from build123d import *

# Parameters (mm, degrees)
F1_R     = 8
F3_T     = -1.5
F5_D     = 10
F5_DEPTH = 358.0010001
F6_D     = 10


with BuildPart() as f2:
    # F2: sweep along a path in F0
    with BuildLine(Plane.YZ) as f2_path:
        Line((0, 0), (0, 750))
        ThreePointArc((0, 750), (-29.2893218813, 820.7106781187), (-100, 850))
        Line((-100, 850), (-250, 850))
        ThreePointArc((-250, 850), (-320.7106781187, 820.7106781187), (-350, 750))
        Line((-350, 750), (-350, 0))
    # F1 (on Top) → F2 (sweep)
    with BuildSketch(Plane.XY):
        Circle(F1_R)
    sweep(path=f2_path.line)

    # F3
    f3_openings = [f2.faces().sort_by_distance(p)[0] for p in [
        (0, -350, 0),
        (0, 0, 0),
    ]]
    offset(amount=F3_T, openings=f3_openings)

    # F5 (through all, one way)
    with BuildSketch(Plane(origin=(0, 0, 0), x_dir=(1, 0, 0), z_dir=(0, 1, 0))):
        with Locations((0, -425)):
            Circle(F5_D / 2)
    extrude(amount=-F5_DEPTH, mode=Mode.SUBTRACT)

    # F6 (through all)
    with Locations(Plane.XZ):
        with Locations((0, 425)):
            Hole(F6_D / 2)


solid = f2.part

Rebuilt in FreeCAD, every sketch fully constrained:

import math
import FreeCAD as App
import Part
import Sketcher
from FreeCAD import Vector
Q = App.Units.Quantity


def faces_at(feature, points):
    """Names of the faces that lie closest to the given points."""
    faces = feature.Shape.Faces
    near = lambda p: min(range(len(faces)), key=lambda i: faces[i].distToShape(Part.Vertex(*p))[0])
    return sorted({f"Face{near(p) + 1}" for p in points})

doc = App.newDocument("Part")
body = doc.addObject("PartDesign::Body", "Body")

# Sketch on XY plane
sketch1 = body.newObject("Sketcher::SketchObject", "Sketch")
sketch1.AttachmentSupport = (doc.getObject("XY_Plane"), [""])
sketch1.MapMode = "FlatFace"
sketch1.addGeometry(Part.Circle(Vector(0, 0, 0), Vector(0, 0, 1), 8), False)
sketch1.addConstraint(Sketcher.Constraint("Coincident", 0, 3, -1, 1))
sketch1.addConstraint(Sketcher.Constraint("Diameter", 0, Q("16 mm")))

# Sketch on YZ plane
sketch2 = body.newObject("Sketcher::SketchObject", "Sketch001")
sketch2.AttachmentSupport = (doc.getObject("YZ_Plane"), [""])
sketch2.MapMode = "FlatFace"
sketch2.addGeometry(Part.LineSegment(Vector(0, 0, 0), Vector(0, 750, 0)), False)
sketch2.addGeometry(Part.ArcOfCircle(Part.Circle(Vector(-100, 750, 0), Vector(0, 0, 1), 100), math.radians(0), math.radians(90)), False)
sketch2.addGeometry(Part.LineSegment(Vector(-100, 850, 0), Vector(-250, 850, 0)), False)
sketch2.addGeometry(Part.ArcOfCircle(Part.Circle(Vector(-250, 750, 0), Vector(0, 0, 1), 100), math.radians(90), math.radians(180)), False)
sketch2.addGeometry(Part.LineSegment(Vector(-350, 750, 0), Vector(-350, 0, 0)), False)
sketch2.addConstraint(Sketcher.Constraint("Tangent", 0, 2, 1, 1))
sketch2.addConstraint(Sketcher.Constraint("Tangent", 1, 2, 2, 1))
sketch2.addConstraint(Sketcher.Constraint("Tangent", 2, 2, 3, 1))
sketch2.addConstraint(Sketcher.Constraint("Tangent", 3, 2, 4, 1))
sketch2.addConstraint(Sketcher.Constraint("Vertical", 0))
sketch2.addConstraint(Sketcher.Constraint("Horizontal", 2))
sketch2.addConstraint(Sketcher.Constraint("Vertical", 4))
sketch2.addConstraint(Sketcher.Constraint("Coincident", 0, 1, -1, 1))
sketch2.addConstraint(Sketcher.Constraint("Equal", 1, 3))
sketch2.addConstraint(Sketcher.Constraint("PointOnObject", 4, 2, -1))
sketch2.addConstraint(Sketcher.Constraint("Radius", 1, Q("100 mm")))
sketch2.addConstraint(Sketcher.Constraint("DistanceX", 2, 2, 2, 1, Q("150 mm")))
sketch2.addConstraint(Sketcher.Constraint("DistanceY", 0, 1, 0, 2, Q("750 mm")))
doc.recompute()

additivepipe = body.newObject("PartDesign::AdditivePipe", "AdditivePipe")
additivepipe.Profile = sketch1
additivepipe.Spine = (sketch2, ["Edge1", "Edge2", "Edge3", "Edge4", "Edge5"])
doc.recompute()

thickness = body.newObject("PartDesign::Thickness", "Thickness")
thickness.Base = (additivepipe, faces_at(additivepipe, [(0, -350, 0), (0, 0, 0)]))
thickness.Value = 1.5
thickness.Reversed = True
thickness.Join = "Arc"

# Sketch on XZ plane
sketch3 = body.newObject("Sketcher::SketchObject", "Sketch002")
sketch3.AttachmentSupport = (doc.getObject("XZ_Plane"), [""])
sketch3.MapMode = "FlatFace"
sketch3.addGeometry(Part.Circle(Vector(0, 425, 0), Vector(0, 0, 1), 5), False)
sketch3.addConstraint(Sketcher.Constraint("PointOnObject", 0, 3, -2))
sketch3.addConstraint(Sketcher.Constraint("Diameter", 0, Q("10 mm")))
sketch3.addConstraint(Sketcher.Constraint("DistanceY", -1, 1, 0, 3, Q("425 mm")))
pocket1 = body.newObject("PartDesign::Pocket", "Pocket")
pocket1.Profile = sketch3
pocket1.Type = "ThroughAll"
pocket1.Reversed = True

# Sketch on XZ plane
sketch4 = body.newObject("Sketcher::SketchObject", "Sketch003")
sketch4.AttachmentSupport = (doc.getObject("XZ_Plane"), [""])
sketch4.MapMode = "FlatFace"
sketch4.addGeometry(Part.Circle(Vector(0, 425, 0), Vector(0, 0, 1), 5), False)
sketch4.addConstraint(Sketcher.Constraint("PointOnObject", 0, 3, -2))
sketch4.addConstraint(Sketcher.Constraint("Diameter", 0, Q("10 mm")))
sketch4.addConstraint(Sketcher.Constraint("DistanceY", -1, 1, 0, 3, Q("425 mm")))
doc.recompute()
hole = body.newObject("PartDesign::Hole", "Hole")
hole.Profile = sketch4
hole.ThreadType = "None"
hole.Diameter = 10
hole.DepthType = "ThroughAll"

doc.recompute()
